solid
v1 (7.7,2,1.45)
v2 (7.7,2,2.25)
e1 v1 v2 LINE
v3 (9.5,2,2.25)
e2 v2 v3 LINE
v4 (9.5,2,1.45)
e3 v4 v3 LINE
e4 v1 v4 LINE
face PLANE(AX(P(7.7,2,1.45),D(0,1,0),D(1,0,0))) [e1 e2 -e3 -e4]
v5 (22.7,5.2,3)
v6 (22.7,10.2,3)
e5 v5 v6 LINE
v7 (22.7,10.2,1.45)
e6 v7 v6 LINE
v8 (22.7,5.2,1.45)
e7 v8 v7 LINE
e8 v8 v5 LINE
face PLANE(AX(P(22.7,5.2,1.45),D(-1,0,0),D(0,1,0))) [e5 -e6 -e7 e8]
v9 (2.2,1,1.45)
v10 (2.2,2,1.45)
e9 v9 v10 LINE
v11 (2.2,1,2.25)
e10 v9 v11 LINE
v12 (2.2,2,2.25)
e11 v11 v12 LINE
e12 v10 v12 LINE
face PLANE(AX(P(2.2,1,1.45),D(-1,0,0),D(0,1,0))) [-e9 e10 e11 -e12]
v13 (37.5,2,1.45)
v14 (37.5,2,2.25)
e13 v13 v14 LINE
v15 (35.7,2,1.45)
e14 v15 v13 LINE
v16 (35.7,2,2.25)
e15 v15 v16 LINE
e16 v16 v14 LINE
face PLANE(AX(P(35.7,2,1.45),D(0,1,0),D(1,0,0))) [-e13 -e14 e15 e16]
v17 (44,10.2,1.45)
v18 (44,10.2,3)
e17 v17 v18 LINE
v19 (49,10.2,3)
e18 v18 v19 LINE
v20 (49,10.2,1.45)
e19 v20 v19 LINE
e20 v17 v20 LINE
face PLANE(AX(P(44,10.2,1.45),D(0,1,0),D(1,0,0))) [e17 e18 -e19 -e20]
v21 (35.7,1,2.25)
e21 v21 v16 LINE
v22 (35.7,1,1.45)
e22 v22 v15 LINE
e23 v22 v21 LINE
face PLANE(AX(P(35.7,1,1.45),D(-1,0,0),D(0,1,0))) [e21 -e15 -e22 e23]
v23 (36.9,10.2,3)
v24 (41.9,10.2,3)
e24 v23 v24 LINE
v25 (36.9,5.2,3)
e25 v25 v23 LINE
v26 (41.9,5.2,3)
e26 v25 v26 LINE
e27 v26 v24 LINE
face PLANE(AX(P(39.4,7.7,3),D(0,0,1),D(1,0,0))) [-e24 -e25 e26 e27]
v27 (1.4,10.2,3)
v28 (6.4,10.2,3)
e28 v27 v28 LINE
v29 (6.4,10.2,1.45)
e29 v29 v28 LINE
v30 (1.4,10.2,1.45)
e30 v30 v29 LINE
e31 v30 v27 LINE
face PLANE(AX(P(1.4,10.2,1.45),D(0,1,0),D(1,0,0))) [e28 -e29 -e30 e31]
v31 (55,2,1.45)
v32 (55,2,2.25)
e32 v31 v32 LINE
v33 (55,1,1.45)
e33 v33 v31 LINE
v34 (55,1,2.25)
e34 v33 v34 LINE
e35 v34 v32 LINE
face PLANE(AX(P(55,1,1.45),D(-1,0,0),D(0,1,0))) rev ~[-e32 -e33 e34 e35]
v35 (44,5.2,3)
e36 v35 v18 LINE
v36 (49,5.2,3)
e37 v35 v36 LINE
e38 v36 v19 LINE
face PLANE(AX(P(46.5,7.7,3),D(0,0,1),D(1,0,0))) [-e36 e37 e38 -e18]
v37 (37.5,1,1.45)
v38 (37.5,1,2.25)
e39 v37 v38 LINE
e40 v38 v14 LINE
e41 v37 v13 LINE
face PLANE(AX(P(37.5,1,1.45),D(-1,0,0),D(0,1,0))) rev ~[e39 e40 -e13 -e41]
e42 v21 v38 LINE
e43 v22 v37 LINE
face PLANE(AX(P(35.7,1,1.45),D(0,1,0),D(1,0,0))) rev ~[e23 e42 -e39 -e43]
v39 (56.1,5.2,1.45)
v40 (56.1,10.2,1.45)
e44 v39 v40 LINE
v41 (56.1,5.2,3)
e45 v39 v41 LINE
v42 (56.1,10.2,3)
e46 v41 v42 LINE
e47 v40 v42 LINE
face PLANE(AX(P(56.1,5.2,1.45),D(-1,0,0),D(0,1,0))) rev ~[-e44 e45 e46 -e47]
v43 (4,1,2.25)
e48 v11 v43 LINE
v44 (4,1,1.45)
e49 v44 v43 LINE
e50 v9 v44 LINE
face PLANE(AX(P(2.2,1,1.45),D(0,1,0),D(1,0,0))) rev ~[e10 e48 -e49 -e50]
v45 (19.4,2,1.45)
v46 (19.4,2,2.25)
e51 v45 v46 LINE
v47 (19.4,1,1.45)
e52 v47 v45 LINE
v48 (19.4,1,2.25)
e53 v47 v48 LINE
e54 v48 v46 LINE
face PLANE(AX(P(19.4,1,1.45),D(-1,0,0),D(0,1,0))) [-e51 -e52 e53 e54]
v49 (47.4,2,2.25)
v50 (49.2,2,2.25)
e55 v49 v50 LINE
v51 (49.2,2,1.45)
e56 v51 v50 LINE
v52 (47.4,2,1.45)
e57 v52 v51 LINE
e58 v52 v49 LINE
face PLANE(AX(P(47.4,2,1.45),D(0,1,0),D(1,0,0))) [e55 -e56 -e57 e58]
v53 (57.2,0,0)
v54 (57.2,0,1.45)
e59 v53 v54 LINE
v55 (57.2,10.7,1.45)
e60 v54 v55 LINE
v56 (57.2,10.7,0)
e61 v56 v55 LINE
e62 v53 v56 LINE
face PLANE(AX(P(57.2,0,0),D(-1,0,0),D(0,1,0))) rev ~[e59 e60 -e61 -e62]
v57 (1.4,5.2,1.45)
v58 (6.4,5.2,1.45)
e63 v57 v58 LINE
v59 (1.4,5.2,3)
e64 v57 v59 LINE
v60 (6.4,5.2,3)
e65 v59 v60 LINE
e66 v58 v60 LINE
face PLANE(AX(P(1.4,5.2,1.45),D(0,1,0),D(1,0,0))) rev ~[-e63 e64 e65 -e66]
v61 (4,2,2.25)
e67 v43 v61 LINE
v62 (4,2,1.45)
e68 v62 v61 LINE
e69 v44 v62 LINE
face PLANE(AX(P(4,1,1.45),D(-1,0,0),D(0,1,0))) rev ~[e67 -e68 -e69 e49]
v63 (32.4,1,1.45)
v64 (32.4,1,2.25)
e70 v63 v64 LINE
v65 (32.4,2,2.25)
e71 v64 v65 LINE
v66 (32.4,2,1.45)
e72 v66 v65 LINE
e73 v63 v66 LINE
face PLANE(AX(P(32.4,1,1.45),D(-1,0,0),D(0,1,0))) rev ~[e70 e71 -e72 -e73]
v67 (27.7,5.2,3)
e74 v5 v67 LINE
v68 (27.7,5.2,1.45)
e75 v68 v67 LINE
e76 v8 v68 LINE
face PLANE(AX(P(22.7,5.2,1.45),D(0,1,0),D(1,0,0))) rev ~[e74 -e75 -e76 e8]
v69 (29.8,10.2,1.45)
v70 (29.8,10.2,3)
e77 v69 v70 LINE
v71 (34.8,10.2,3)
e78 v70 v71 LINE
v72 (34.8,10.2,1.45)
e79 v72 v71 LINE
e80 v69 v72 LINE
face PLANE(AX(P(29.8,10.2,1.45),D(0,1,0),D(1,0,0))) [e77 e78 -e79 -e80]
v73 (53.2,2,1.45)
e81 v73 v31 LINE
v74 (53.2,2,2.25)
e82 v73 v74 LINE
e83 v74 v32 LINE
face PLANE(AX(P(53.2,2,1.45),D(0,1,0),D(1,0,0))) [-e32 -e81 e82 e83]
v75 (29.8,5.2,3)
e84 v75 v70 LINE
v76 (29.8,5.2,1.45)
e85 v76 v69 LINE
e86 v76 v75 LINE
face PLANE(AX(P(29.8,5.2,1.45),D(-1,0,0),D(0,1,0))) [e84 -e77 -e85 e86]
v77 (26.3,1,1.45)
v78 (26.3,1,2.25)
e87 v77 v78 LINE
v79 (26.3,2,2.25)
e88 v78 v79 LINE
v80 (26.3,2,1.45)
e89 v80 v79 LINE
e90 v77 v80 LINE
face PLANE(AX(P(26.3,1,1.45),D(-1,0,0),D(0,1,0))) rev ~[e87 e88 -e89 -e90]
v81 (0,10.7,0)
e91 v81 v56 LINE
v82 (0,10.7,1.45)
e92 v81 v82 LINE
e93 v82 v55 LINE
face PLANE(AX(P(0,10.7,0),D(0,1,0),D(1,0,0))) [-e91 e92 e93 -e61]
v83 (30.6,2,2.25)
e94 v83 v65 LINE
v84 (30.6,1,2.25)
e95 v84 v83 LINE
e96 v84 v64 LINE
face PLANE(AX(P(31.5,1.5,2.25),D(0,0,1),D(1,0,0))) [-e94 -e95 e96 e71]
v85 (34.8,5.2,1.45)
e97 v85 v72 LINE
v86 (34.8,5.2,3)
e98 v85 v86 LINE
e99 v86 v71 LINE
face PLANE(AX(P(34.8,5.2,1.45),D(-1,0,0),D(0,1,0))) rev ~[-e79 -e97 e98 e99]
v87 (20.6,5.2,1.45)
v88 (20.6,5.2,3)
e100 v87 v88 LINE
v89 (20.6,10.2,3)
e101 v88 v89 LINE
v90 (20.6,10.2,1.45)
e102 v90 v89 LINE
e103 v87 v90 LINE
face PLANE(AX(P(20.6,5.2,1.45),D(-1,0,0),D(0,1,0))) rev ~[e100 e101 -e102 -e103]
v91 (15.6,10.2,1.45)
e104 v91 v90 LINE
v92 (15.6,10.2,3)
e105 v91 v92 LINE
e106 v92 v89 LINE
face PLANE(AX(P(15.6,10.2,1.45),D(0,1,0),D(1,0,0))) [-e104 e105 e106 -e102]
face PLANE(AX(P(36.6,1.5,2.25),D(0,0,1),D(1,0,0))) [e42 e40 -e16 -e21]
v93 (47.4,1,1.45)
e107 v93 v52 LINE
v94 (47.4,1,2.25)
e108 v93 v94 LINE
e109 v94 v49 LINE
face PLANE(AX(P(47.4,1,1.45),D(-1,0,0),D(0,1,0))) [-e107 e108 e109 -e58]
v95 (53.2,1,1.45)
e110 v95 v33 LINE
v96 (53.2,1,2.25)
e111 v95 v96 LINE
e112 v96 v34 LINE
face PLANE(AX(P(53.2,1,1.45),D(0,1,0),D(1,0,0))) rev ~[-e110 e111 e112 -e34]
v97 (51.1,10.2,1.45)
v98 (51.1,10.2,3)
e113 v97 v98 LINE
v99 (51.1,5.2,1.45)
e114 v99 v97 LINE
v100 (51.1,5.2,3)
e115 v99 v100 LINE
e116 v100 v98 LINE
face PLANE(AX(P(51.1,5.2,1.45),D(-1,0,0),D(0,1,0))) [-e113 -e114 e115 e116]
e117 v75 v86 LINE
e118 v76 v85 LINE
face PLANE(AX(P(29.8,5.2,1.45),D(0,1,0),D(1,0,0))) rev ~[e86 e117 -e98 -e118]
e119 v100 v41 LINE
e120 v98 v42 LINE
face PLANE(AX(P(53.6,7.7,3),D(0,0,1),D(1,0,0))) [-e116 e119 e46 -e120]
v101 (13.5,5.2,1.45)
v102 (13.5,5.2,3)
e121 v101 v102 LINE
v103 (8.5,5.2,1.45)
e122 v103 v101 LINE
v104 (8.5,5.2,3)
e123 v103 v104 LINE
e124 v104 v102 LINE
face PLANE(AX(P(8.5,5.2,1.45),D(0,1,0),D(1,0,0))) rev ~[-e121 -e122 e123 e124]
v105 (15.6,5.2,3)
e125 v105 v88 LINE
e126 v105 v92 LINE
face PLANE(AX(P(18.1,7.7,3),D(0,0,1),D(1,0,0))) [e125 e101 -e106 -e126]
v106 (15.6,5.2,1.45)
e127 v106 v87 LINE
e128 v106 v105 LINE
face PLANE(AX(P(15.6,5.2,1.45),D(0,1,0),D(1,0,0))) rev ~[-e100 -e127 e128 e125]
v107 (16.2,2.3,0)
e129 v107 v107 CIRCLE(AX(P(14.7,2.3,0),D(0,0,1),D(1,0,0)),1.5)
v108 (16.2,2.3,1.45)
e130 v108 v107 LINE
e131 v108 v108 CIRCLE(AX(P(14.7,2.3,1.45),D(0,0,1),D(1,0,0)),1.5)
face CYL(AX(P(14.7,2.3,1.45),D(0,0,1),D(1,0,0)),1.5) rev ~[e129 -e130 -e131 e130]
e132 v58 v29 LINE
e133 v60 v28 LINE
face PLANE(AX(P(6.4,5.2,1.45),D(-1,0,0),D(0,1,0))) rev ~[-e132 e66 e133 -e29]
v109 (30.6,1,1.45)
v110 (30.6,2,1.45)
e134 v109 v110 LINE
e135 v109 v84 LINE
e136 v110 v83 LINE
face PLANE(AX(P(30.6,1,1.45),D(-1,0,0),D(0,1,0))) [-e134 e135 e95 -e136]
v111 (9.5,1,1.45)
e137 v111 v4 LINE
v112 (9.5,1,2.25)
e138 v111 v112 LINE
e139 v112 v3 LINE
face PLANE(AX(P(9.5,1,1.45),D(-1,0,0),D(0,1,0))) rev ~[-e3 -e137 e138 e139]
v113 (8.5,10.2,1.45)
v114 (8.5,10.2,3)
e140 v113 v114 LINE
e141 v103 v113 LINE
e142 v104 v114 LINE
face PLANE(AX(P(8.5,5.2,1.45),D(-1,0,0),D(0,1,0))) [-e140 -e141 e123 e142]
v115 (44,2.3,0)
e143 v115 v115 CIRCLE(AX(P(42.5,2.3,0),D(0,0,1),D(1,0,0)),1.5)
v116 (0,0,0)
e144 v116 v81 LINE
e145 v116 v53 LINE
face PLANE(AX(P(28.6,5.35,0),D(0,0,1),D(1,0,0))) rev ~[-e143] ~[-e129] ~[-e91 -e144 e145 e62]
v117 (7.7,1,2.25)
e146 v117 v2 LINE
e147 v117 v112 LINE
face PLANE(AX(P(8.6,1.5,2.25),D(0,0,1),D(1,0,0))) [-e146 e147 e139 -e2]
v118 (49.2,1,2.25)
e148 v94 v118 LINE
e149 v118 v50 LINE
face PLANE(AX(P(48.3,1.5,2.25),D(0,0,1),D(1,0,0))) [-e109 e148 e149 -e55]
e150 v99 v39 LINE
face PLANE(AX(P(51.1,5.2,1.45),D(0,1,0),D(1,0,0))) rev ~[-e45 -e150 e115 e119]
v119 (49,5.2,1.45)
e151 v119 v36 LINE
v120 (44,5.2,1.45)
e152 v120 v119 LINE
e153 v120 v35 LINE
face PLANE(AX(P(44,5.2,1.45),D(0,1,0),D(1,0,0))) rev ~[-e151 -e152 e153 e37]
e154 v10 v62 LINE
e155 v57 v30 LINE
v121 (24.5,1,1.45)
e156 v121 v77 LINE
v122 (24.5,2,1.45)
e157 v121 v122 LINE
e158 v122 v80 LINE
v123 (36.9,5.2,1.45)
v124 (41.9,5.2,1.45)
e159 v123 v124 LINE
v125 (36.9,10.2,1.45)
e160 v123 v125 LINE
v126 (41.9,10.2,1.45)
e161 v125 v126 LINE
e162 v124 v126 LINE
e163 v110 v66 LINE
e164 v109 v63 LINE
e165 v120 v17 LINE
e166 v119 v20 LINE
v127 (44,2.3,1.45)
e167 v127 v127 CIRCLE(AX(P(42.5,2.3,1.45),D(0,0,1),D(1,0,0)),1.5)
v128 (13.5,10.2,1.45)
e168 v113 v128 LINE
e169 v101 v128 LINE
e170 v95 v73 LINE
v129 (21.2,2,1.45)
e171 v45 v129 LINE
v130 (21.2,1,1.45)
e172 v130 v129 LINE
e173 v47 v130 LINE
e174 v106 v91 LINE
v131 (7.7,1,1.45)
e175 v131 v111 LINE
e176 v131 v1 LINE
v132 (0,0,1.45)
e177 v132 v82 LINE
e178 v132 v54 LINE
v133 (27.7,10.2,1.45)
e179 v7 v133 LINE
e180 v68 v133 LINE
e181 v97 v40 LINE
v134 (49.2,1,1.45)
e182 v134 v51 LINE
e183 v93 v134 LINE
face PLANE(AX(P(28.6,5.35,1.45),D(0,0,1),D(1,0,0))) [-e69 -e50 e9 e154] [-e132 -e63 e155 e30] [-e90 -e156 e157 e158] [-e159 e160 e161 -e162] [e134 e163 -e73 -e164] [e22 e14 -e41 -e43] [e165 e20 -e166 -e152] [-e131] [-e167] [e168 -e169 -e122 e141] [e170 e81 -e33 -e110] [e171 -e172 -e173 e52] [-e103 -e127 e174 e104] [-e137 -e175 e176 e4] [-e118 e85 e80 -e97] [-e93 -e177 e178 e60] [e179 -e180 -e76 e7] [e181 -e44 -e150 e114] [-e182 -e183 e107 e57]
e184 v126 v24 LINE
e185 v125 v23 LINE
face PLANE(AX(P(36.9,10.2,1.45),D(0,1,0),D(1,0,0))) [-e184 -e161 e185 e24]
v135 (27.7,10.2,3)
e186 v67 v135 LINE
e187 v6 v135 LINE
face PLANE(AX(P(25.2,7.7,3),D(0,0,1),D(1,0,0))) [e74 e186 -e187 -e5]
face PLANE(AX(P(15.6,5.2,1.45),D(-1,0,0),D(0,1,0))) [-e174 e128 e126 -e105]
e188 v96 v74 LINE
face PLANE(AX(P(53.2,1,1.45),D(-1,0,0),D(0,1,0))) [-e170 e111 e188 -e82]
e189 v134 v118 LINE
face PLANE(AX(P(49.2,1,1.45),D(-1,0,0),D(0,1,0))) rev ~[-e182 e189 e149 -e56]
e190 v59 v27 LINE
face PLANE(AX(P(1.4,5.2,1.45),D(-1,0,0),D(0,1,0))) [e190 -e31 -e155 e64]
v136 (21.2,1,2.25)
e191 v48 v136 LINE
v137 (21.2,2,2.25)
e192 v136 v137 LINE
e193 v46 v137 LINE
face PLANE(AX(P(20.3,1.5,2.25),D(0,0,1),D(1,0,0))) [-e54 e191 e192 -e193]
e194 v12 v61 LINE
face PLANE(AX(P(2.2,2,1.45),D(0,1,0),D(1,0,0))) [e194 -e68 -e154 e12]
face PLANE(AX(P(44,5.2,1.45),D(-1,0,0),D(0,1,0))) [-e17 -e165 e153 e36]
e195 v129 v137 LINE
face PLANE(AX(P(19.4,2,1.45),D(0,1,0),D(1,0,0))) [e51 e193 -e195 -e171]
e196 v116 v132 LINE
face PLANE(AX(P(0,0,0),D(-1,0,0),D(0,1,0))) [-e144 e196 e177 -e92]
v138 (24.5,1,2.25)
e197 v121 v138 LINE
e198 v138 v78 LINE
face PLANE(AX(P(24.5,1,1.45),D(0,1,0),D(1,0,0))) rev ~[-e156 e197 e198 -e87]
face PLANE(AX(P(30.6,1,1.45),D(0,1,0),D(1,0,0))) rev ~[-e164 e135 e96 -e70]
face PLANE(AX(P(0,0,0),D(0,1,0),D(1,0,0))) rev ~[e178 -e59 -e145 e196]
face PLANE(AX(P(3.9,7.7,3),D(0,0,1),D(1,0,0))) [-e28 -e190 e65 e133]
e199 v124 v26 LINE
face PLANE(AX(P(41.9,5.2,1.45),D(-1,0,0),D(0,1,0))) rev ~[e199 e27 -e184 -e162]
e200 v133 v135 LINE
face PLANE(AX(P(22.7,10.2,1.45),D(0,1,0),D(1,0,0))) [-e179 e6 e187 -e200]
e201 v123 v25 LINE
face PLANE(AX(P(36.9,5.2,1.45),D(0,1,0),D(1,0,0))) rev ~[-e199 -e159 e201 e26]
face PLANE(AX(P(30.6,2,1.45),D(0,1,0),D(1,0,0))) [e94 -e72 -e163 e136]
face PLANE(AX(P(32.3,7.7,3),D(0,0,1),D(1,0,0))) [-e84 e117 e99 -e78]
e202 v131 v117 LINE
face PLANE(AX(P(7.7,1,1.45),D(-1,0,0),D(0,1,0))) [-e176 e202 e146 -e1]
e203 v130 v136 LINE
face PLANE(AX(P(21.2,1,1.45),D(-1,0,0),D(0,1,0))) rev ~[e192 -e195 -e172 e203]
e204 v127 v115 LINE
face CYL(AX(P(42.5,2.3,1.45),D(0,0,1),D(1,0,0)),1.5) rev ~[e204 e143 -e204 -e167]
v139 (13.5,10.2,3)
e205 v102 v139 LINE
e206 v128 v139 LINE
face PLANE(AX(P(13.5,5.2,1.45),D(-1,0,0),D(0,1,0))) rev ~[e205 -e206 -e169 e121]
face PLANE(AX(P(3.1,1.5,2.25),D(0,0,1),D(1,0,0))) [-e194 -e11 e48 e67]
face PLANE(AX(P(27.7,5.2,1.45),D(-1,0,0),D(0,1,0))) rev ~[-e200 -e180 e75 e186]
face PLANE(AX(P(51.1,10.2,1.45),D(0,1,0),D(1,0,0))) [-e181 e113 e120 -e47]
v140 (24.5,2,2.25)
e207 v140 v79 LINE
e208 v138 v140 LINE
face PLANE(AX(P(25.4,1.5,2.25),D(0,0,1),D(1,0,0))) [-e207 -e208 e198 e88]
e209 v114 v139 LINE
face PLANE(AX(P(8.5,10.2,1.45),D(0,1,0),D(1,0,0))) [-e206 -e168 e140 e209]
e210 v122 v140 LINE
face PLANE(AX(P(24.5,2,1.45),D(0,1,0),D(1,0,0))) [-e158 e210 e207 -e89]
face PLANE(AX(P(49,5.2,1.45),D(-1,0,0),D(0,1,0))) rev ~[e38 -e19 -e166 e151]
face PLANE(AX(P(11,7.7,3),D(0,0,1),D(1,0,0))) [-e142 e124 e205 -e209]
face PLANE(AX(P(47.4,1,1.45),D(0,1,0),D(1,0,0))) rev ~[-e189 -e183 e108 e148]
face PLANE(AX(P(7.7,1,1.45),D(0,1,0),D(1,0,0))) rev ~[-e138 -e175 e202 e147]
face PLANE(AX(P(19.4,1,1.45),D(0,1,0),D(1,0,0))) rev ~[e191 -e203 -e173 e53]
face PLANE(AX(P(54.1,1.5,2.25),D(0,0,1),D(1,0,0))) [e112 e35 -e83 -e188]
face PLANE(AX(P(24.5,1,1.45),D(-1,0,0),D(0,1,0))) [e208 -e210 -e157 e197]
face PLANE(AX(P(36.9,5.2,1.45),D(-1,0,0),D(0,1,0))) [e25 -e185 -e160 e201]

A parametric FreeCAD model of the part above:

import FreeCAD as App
import Part
import Sketcher
from FreeCAD import Vector


def add_polygon(sketch, points):
    """Adds a closed chain of lines whose ends are joined by coincident constraints."""
    first, n = sketch.GeometryCount, len(points)
    for a, b in zip(points, points[1:] + points[:1]):
        sketch.addGeometry(Part.LineSegment(App.Vector(*a, 0), App.Vector(*b, 0)), False)
    for i in range(n):
        sketch.addConstraint(Sketcher.Constraint("Coincident", first + i, 2, first + (i + 1) % n, 1))

doc = App.newDocument("Part")
body = doc.addObject("PartDesign::Body", "Body")

# Sketch on XY plane
sketch1 = body.newObject("Sketcher::SketchObject", "Sketch")
sketch1.AttachmentSupport = (doc.getObject("XY_Plane"), [""])
sketch1.MapMode = "FlatFace"
add_polygon(sketch1, [(0, 10.7), (0, 0), (57.2, 0), (57.2, 10.7)])  # lines 0-3
sketch1.addConstraint([
    Sketcher.Constraint("Vertical", 0),
    Sketcher.Constraint("Horizontal", 1),
    Sketcher.Constraint("Vertical", 2),
    Sketcher.Constraint("Horizontal", 3),
    Sketcher.Constraint("Coincident", 0, 2, -1, 1),
    Sketcher.Constraint("DistanceX", 1, 1, 1, 2, 57.2),
    Sketcher.Constraint("DistanceY", 0, 2, 0, 1, 10.7),
])
pad1 = body.newObject("PartDesign::Pad", "Pad")
pad1.Profile = sketch1
pad1.Length = 1.45

# Sketch on XY plane
sketch2 = body.newObject("Sketcher::SketchObject", "Sketch001")
sketch2.AttachmentSupport = (doc.getObject("XY_Plane"), [""])
sketch2.MapMode = "FlatFace"
sketch2.AttachmentOffset = App.Placement(Vector(0, 0, 1.45), App.Rotation())
add_polygon(sketch2, [(1.4, 10.2), (1.4, 5.2), (6.4, 5.2), (6.4, 10.2)])  # lines 0-3
sketch2.addConstraint([
    Sketcher.Constraint("Vertical", 0),
    Sketcher.Constraint("Horizontal", 1),
    Sketcher.Constraint("Vertical", 2),
    Sketcher.Constraint("Horizontal", 3),
    Sketcher.Constraint("Equal", 3, 0),
    Sketcher.Constraint("DistanceX", 1, 1, 1, 2, 5.0),
    Sketcher.Constraint("DistanceX", -1, 1, 0, 2, 1.4),
    Sketcher.Constraint("DistanceY", -1, 1, 0, 2, 5.2),
])
pad2 = body.newObject("PartDesign::Pad", "Pad001")
pad2.Profile = sketch2
pad2.Length = 1.55
doc.recompute()

linearpattern = body.newObject("PartDesign::LinearPattern", "LinearPattern")
linearpattern.Originals = [pad2]
linearpattern.Direction = (doc.getObject("X_Axis"), [""])
linearpattern.Mode = "offset"
linearpattern.Offset = 7.1
linearpattern.Occurrences = 8
body.Tip = linearpattern

# Sketch on XY plane
sketch3 = body.newObject("Sketcher::SketchObject", "Sketch002")
sketch3.AttachmentSupport = (doc.getObject("XY_Plane"), [""])
sketch3.MapMode = "FlatFace"
sketch3.AttachmentOffset = App.Placement(Vector(0, 0, 1.45), App.Rotation())
sketch3.addGeometry(Part.Circle(Vector(14.7, 2.3, 0), Vector(0, 0, 1), 1.5), False)
sketch3.addConstraint([
    Sketcher.Constraint("Diameter", 0, 3.0),
    Sketcher.Constraint("DistanceX", -1, 1, 0, 3, 14.7),
    Sketcher.Constraint("DistanceY", -1, 1, 0, 3, 2.3),
])
pocket1 = body.newObject("PartDesign::Pocket", "Pocket")
pocket1.Profile = sketch3
pocket1.Type = "UpToFirst"

# Sketch on XY plane
sketch4 = body.newObject("Sketcher::SketchObject", "Sketch003")
sketch4.AttachmentSupport = (doc.getObject("XY_Plane"), [""])
sketch4.MapMode = "FlatFace"
sketch4.AttachmentOffset = App.Placement(Vector(0, 0, 1.45), App.Rotation())
sketch4.addGeometry(Part.Circle(Vector(42.5, 2.3, 0), Vector(0, 0, 1), 1.5), False)
sketch4.addConstraint([
    Sketcher.Constraint("Diameter", 0, 3.0),
    Sketcher.Constraint("DistanceX", -1, 1, 0, 3, 42.5),
    Sketcher.Constraint("DistanceY", -1, 1, 0, 3, 2.3),
])
pocket2 = body.newObject("PartDesign::Pocket", "Pocket001")
pocket2.Profile = sketch4
pocket2.Type = "UpToFirst"

# Sketch on XY plane
sketch5 = body.newObject("Sketcher::SketchObject", "Sketch004")
sketch5.AttachmentSupport = (doc.getObject("XY_Plane"), [""])
sketch5.MapMode = "FlatFace"
sketch5.AttachmentOffset = App.Placement(Vector(0, 0, 1.45), App.Rotation())
add_polygon(sketch5, [(2.2, 2), (2.2, 1), (4, 1), (4, 2)])  # lines 0-3
add_polygon(sketch5, [(7.7, 2), (7.7, 1), (9.5, 1), (9.5, 2)])  # lines 4-7
add_polygon(sketch5, [(19.4, 2), (19.4, 1), (21.2, 1), (21.2, 2)])  # lines 8-11
add_polygon(sketch5, [(24.5, 2), (24.5, 1), (26.3, 1), (26.3, 2)])  # lines 12-15
add_polygon(sketch5, [(30.6, 2), (30.6, 1), (32.4, 1), (32.4, 2)])  # lines 16-19
add_polygon(sketch5, [(35.7, 2), (35.7, 1), (37.5, 1), (37.5, 2)])  # lines 20-23
add_polygon(sketch5, [(47.4, 2), (47.4, 1), (49.2, 1), (49.2, 2)])  # lines 24-27
add_polygon(sketch5, [(53.2, 2), (53.2, 1), (55, 1), (55, 2)])  # lines 28-31
sketch5.addConstraint([
    Sketcher.Constraint("Vertical", 0),
    Sketcher.Constraint("Horizontal", 1),
    Sketcher.Constraint("Vertical", 2),
    Sketcher.Constraint("Horizontal", 3),
    Sketcher.Constraint("Vertical", 4),
    Sketcher.Constraint("Horizontal", 5),
    Sketcher.Constraint("Vertical", 6),
    Sketcher.Constraint("Horizontal", 7),
    Sketcher.Constraint("Vertical", 8),
    Sketcher.Constraint("Horizontal", 9),
    Sketcher.Constraint("Vertical", 10),
    Sketcher.Constraint("Horizontal", 11),
    Sketcher.Constraint("Vertical", 12),
    Sketcher.Constraint("Horizontal", 13),
    Sketcher.Constraint("Vertical", 14),
    Sketcher.Constraint("Horizontal", 15),
    Sketcher.Constraint("Vertical", 16),
    Sketcher.Constraint("Horizontal", 17),
    Sketcher.Constraint("Vertical", 18),
    Sketcher.Constraint("Horizontal", 19),
    Sketcher.Constraint("Vertical", 20),
    Sketcher.Constraint("Horizontal", 21),
    Sketcher.Constraint("Vertical", 22),
    Sketcher.Constraint("Horizontal", 23),
    Sketcher.Constraint("Vertical", 24),
    Sketcher.Constraint("Horizontal", 25),
    Sketcher.Constraint("Vertical", 26),
    Sketcher.Constraint("Horizontal", 27),
    Sketcher.Constraint("Vertical", 28),
    Sketcher.Constraint("Horizontal", 29),
    Sketcher.Constraint("Vertical", 30),
    Sketcher.Constraint("Horizontal", 31),
    Sketcher.Constraint("Horizontal", 1, 2, 4, 2),
    Sketcher.Constraint("Horizontal", 3, 2, 6, 2),
    Sketcher.Constraint("Horizontal", 5, 2, 8, 2),
    Sketcher.Constraint("Horizontal", 7, 2, 10, 2),
    Sketcher.Constraint("Horizontal", 9, 2, 12, 2),
    Sketcher.Constraint("Horizontal", 11, 2, 14, 2),
    Sketcher.Constraint("Horizontal", 13, 2, 16, 2),
    Sketcher.Constraint("Horizontal", 15, 2, 18, 2),
    Sketcher.Constraint("Horizontal", 17, 2, 20, 2),
    Sketcher.Constraint("Horizontal", 19, 2, 22, 2),
    Sketcher.Constraint("Horizontal", 21, 2, 24, 2),
    Sketcher.Constraint("Horizontal", 23, 2, 26, 2),
    Sketcher.Constraint("Horizontal", 25, 2, 28, 2),
    Sketcher.Constraint("Horizontal", 27, 2, 30, 2),
    Sketcher.Constraint("Equal", 3, 5),
    Sketcher.Constraint("Equal", 7, 9),
    Sketcher.Constraint("Equal", 11, 13),
    Sketcher.Constraint("Equal", 15, 17),
    Sketcher.Constraint("Equal", 19, 21),
    Sketcher.Constraint("Equal", 23, 25),
    Sketcher.Constraint("Equal", 27, 29),
    Sketcher.Constraint("DistanceY", 0, 2, 0, 1, 1.0),
    Sketcher.Constraint("DistanceX", 1, 1, 1, 2, 1.8),
    Sketcher.Constraint("DistanceY", -1, 1, 0, 2, 1.0),
    Sketcher.Constraint("DistanceX", -1, 1, 1, 2, 4.0),
    Sketcher.Constraint("DistanceX", -1, 1, 29, 2, 55.0),
    Sketcher.Constraint("DistanceX", 5, 2, 12, 2, 15.0),
    Sketcher.Constraint("DistanceX", 17, 2, 24, 2, 15.0),
    Sketcher.Constraint("DistanceX", 25, 2, 28, 2, 4.0),
    Sketcher.Constraint("DistanceX", -1, 1, 4, 2, 7.7),
    Sketcher.Constraint("DistanceX", -1, 1, 8, 2, 19.4),
    Sketcher.Constraint("DistanceX", -1, 1, 20, 2, 35.7),
])
pad3 = body.newObject("PartDesign::Pad", "Pad002")
pad3.Profile = sketch5
pad3.Length = 0.8

doc.recompute()
